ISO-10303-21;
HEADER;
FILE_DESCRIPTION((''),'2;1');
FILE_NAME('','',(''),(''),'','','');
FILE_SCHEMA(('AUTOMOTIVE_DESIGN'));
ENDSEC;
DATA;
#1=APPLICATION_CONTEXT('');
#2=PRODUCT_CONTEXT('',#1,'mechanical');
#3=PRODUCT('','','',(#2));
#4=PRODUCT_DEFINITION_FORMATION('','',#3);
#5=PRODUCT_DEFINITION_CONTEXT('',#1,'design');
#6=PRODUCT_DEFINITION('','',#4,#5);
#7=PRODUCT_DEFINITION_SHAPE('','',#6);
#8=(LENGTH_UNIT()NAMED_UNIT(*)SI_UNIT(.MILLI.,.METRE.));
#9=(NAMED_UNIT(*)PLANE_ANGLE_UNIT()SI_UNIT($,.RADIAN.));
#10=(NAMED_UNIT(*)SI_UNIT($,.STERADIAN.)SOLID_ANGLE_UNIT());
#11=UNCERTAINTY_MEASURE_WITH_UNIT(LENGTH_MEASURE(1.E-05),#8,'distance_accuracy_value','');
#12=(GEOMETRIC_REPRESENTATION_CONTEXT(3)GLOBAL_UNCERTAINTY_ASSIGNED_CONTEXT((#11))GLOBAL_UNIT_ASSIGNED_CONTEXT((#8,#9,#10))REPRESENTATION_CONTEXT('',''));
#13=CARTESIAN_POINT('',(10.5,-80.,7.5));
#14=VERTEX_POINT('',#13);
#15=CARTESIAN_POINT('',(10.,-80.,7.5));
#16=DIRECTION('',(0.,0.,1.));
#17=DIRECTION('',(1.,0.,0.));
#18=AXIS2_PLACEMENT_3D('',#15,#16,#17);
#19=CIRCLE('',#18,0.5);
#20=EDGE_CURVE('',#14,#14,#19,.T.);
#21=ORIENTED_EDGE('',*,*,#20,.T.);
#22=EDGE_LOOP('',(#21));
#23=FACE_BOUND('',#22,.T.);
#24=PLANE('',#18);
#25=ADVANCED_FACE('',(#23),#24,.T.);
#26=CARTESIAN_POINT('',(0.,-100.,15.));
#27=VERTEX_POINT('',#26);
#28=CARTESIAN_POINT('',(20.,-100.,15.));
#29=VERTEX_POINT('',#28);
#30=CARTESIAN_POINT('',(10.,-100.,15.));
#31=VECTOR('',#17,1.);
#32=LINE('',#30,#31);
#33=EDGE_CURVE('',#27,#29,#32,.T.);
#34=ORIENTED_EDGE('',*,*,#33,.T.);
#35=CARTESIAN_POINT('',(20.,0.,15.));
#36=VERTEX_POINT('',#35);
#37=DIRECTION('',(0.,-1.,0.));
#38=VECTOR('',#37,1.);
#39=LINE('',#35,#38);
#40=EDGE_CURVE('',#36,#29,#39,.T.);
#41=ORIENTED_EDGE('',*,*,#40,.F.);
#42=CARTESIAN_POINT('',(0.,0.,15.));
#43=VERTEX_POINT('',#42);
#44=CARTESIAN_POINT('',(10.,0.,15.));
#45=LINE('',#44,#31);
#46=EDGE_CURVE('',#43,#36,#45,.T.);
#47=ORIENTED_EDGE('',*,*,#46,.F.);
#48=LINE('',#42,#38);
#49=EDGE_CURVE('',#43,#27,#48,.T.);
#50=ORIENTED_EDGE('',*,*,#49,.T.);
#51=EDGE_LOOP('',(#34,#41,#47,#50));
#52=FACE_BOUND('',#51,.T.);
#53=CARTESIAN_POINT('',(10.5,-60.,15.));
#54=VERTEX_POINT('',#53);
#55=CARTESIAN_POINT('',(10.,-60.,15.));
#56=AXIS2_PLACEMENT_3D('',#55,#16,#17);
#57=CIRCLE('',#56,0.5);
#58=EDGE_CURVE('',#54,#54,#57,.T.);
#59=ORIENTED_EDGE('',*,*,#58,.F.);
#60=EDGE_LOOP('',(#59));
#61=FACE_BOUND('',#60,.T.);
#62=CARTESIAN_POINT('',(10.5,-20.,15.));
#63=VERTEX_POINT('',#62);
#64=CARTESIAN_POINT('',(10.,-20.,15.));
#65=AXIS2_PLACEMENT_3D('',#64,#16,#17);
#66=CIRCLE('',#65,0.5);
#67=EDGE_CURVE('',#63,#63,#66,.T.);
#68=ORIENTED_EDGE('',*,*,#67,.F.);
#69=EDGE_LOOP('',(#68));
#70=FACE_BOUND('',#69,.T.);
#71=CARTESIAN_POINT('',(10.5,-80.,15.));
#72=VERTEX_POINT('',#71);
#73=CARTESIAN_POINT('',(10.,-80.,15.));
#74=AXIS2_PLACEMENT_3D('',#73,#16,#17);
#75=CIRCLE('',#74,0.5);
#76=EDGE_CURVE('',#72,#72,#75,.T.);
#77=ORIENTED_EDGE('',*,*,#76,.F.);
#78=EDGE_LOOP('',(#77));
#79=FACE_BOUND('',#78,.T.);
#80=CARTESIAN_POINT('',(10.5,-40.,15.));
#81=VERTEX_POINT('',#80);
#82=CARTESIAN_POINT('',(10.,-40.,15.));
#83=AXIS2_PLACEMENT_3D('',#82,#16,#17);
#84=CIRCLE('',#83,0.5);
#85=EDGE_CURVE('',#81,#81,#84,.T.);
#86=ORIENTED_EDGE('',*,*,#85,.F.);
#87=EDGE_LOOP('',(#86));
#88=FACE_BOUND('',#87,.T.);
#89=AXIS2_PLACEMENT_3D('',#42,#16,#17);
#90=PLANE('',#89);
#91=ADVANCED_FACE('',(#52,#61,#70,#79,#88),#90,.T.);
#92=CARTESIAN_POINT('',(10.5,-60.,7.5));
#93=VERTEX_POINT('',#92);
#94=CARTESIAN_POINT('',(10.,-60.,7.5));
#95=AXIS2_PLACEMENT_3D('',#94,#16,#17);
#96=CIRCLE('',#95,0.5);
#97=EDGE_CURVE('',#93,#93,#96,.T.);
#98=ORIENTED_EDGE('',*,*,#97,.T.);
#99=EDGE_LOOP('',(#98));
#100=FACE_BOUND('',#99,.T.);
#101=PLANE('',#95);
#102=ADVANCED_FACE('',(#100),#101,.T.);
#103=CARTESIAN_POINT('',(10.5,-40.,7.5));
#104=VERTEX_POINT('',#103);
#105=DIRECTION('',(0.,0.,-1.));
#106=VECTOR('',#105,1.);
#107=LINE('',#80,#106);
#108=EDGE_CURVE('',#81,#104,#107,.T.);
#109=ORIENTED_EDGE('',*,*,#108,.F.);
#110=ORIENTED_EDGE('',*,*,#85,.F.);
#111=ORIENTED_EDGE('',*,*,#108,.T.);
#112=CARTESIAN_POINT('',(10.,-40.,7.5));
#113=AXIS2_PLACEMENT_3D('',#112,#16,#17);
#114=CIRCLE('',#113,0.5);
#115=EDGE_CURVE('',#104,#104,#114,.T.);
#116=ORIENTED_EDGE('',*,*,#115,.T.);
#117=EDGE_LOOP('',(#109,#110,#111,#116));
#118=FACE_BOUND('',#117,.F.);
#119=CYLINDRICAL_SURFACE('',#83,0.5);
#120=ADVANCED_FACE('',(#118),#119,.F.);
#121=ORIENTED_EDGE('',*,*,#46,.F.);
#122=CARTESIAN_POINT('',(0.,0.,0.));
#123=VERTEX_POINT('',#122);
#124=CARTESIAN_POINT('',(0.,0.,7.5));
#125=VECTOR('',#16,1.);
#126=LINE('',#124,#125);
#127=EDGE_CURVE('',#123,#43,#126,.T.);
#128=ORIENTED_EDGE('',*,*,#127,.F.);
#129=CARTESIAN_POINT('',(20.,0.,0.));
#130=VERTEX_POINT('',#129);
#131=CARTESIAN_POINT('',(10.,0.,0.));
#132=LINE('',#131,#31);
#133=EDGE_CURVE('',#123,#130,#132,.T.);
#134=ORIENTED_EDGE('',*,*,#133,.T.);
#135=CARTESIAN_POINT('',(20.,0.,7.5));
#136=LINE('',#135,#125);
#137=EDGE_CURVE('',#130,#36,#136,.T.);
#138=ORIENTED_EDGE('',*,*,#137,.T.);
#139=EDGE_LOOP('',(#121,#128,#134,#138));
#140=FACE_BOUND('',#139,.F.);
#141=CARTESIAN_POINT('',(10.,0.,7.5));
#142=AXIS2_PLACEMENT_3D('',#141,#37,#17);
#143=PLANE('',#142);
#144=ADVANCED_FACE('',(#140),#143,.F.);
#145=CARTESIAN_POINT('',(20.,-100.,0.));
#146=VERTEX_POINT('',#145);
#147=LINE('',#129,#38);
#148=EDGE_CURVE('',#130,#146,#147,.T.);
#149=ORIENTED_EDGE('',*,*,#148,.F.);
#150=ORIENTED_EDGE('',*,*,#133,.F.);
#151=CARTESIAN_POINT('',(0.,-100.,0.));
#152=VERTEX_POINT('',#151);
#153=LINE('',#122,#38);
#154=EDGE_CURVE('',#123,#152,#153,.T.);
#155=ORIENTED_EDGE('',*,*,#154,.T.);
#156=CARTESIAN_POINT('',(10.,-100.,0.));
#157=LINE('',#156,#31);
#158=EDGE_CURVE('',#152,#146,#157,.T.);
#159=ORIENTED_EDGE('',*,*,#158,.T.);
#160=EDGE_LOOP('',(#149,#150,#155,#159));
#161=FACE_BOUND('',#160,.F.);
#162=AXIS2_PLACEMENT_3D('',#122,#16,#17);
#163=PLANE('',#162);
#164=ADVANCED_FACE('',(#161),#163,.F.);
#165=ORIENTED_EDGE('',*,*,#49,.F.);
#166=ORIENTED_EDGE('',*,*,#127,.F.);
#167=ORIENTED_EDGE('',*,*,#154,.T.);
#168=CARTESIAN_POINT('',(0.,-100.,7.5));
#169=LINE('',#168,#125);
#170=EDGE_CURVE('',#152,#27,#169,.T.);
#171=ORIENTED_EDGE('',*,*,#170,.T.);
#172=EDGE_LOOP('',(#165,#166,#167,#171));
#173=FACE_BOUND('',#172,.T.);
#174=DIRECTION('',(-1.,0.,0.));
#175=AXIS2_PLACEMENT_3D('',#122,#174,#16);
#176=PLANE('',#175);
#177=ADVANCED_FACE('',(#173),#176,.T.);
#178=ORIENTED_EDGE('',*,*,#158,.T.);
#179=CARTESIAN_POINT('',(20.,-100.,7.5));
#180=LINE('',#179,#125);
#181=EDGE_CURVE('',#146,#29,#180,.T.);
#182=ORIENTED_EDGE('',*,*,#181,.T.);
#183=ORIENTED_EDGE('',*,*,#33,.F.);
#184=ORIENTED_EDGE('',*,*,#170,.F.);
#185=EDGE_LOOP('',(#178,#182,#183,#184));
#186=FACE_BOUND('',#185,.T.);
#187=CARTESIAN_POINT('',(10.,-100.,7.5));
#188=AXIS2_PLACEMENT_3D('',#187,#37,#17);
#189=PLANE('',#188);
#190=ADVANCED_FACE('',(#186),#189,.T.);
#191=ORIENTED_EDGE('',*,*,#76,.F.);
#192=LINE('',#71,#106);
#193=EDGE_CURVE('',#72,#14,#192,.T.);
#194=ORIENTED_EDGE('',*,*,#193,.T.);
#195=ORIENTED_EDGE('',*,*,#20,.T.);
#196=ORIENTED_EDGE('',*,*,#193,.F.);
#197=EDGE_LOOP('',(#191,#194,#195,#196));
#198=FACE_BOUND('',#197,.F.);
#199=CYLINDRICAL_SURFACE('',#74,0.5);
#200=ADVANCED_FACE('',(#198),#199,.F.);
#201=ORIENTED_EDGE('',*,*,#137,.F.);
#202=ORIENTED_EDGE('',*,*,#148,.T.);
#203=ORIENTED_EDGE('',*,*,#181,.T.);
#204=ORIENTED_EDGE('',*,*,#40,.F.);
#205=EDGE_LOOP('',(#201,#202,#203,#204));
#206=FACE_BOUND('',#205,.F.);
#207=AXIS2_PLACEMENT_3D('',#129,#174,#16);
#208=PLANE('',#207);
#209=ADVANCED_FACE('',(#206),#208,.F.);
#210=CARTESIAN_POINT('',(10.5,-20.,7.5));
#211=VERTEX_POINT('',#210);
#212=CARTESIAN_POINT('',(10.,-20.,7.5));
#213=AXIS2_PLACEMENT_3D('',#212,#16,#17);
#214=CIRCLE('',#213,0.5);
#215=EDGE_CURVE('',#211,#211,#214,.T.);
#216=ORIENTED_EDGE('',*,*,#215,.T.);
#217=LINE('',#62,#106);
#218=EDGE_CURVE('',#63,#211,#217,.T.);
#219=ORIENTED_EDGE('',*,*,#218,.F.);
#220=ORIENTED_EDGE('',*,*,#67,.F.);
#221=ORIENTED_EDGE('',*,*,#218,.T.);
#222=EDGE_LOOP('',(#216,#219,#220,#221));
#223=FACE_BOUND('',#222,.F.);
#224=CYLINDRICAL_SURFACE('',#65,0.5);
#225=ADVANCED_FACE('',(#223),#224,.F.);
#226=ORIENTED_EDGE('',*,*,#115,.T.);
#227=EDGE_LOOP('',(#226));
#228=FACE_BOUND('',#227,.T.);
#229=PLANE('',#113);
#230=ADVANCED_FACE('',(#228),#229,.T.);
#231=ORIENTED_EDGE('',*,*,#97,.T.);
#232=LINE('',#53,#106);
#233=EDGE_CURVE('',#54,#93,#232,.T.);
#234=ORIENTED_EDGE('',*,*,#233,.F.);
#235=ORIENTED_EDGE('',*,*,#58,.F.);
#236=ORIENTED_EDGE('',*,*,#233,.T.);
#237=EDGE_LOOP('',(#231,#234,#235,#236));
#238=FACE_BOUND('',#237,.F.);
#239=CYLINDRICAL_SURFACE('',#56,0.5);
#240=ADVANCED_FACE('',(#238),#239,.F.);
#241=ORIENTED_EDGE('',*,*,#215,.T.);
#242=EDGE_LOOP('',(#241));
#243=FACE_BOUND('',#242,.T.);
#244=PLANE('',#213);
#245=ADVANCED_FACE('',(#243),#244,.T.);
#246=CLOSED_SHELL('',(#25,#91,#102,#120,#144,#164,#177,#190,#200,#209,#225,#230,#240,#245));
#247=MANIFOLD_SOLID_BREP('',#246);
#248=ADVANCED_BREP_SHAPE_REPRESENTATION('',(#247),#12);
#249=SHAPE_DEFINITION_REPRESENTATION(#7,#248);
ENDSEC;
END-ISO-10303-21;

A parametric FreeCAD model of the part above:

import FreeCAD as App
import Part
import Sketcher
from FreeCAD import Vector


def add_polygon(sketch, points):
    """Adds a closed chain of lines whose ends are joined by coincident constraints."""
    first, n = sketch.GeometryCount, len(points)
    for a, b in zip(points, points[1:] + points[:1]):
        sketch.addGeometry(Part.LineSegment(App.Vector(*a, 0), App.Vector(*b, 0)), False)
    for i in range(n):
        sketch.addConstraint(Sketcher.Constraint("Coincident", first + i, 2, first + (i + 1) % n, 1))

doc = App.newDocument("Part")
params = doc.addObject("Spreadsheet::Sheet", "Params")
for row, (alias, value) in enumerate([
    ("sketch1_width", "20 mm"),
    ("sketch1_height", "15 mm"),
    ("pad1_length", "100 mm"),
    ("sketch2_diameter", "1 mm"),
    ("pocket1_length", "7.5 mm"),
], start=1):
    params.set(f"A{row}", alias)
    params.set(f"B{row}", "=" + value)
    params.setAlias(f"B{row}", alias)

body = doc.addObject("PartDesign::Body", "Body")

# Sketch on XZ plane
sketch1 = body.newObject("Sketcher::SketchObject", "Sketch")
sketch1.AttachmentSupport = (doc.getObject("XZ_Plane"), [""])
sketch1.MapMode = "FlatFace"
add_polygon(sketch1, [(0, 15), (0, 0), (20, 0), (20, 15)])  # lines 0-3
sketch1.addConstraint([
    Sketcher.Constraint("Vertical", 0),
    Sketcher.Constraint("Horizontal", 1),
    Sketcher.Constraint("Vertical", 2),
    Sketcher.Constraint("Horizontal", 3),
    Sketcher.Constraint("Coincident", 0, 2, -1, 1),
    Sketcher.Constraint("DistanceX", 1, 1, 1, 2, 20.0),
    Sketcher.Constraint("DistanceY", 0, 2, 0, 1, 15.0),
])
sketch1.setExpression("Constraints[9]", "Params.sketch1_width")
sketch1.setExpression("Constraints[10]", "Params.sketch1_height")
pad1 = body.newObject("PartDesign::Pad", "Pad")
pad1.Profile = sketch1
pad1.setExpression("Length", "Params.pad1_length")

# Sketch on XY plane
sketch2 = body.newObject("Sketcher::SketchObject", "Sketch001")
sketch2.AttachmentSupport = (doc.getObject("XY_Plane"), [""])
sketch2.MapMode = "FlatFace"
sketch2.AttachmentOffset = App.Placement(Vector(0, 0, 15), App.Rotation())
sketch2.addGeometry([
    Part.Circle(Vector(10, -80, 0), Vector(0, 0, 1), 0.5),
    Part.Circle(Vector(10, -60, 0), Vector(0, 0, 1), 0.5),
    Part.Circle(Vector(10, -40, 0), Vector(0, 0, 1), 0.5),
    Part.Circle(Vector(10, -20, 0), Vector(0, 0, 1), 0.5),
], False)
sketch2.addConstraint([
    Sketcher.Constraint("Equal", 0, 1),
    Sketcher.Constraint("Equal", 1, 2),
    Sketcher.Constraint("Equal", 2, 3),
    Sketcher.Constraint("Vertical", 0, 3, 1, 3),
    Sketcher.Constraint("Vertical", 1, 3, 2, 3),
    Sketcher.Constraint("Vertical", 2, 3, 3, 3),
    Sketcher.Constraint("Diameter", 0, 1.0),
    Sketcher.Constraint("DistanceX", -1, 1, 0, 3, 10.0),
    Sketcher.Constraint("DistanceY", 0, 3, -1, 1, 80.0),
    Sketcher.Constraint("DistanceY", 1, 3, -1, 1, 60.0),
    Sketcher.Constraint("DistanceY", 2, 3, -1, 1, 40.0),
    Sketcher.Constraint("DistanceY", 3, 3, -1, 1, 20.0),
])
sketch2.setExpression("Constraints[6]", "Params.sketch2_diameter")
pocket1 = body.newObject("PartDesign::Pocket", "Pocket")
pocket1.Profile = sketch2
pocket1.setExpression("Length", "Params.pocket1_length")

doc.recompute()
